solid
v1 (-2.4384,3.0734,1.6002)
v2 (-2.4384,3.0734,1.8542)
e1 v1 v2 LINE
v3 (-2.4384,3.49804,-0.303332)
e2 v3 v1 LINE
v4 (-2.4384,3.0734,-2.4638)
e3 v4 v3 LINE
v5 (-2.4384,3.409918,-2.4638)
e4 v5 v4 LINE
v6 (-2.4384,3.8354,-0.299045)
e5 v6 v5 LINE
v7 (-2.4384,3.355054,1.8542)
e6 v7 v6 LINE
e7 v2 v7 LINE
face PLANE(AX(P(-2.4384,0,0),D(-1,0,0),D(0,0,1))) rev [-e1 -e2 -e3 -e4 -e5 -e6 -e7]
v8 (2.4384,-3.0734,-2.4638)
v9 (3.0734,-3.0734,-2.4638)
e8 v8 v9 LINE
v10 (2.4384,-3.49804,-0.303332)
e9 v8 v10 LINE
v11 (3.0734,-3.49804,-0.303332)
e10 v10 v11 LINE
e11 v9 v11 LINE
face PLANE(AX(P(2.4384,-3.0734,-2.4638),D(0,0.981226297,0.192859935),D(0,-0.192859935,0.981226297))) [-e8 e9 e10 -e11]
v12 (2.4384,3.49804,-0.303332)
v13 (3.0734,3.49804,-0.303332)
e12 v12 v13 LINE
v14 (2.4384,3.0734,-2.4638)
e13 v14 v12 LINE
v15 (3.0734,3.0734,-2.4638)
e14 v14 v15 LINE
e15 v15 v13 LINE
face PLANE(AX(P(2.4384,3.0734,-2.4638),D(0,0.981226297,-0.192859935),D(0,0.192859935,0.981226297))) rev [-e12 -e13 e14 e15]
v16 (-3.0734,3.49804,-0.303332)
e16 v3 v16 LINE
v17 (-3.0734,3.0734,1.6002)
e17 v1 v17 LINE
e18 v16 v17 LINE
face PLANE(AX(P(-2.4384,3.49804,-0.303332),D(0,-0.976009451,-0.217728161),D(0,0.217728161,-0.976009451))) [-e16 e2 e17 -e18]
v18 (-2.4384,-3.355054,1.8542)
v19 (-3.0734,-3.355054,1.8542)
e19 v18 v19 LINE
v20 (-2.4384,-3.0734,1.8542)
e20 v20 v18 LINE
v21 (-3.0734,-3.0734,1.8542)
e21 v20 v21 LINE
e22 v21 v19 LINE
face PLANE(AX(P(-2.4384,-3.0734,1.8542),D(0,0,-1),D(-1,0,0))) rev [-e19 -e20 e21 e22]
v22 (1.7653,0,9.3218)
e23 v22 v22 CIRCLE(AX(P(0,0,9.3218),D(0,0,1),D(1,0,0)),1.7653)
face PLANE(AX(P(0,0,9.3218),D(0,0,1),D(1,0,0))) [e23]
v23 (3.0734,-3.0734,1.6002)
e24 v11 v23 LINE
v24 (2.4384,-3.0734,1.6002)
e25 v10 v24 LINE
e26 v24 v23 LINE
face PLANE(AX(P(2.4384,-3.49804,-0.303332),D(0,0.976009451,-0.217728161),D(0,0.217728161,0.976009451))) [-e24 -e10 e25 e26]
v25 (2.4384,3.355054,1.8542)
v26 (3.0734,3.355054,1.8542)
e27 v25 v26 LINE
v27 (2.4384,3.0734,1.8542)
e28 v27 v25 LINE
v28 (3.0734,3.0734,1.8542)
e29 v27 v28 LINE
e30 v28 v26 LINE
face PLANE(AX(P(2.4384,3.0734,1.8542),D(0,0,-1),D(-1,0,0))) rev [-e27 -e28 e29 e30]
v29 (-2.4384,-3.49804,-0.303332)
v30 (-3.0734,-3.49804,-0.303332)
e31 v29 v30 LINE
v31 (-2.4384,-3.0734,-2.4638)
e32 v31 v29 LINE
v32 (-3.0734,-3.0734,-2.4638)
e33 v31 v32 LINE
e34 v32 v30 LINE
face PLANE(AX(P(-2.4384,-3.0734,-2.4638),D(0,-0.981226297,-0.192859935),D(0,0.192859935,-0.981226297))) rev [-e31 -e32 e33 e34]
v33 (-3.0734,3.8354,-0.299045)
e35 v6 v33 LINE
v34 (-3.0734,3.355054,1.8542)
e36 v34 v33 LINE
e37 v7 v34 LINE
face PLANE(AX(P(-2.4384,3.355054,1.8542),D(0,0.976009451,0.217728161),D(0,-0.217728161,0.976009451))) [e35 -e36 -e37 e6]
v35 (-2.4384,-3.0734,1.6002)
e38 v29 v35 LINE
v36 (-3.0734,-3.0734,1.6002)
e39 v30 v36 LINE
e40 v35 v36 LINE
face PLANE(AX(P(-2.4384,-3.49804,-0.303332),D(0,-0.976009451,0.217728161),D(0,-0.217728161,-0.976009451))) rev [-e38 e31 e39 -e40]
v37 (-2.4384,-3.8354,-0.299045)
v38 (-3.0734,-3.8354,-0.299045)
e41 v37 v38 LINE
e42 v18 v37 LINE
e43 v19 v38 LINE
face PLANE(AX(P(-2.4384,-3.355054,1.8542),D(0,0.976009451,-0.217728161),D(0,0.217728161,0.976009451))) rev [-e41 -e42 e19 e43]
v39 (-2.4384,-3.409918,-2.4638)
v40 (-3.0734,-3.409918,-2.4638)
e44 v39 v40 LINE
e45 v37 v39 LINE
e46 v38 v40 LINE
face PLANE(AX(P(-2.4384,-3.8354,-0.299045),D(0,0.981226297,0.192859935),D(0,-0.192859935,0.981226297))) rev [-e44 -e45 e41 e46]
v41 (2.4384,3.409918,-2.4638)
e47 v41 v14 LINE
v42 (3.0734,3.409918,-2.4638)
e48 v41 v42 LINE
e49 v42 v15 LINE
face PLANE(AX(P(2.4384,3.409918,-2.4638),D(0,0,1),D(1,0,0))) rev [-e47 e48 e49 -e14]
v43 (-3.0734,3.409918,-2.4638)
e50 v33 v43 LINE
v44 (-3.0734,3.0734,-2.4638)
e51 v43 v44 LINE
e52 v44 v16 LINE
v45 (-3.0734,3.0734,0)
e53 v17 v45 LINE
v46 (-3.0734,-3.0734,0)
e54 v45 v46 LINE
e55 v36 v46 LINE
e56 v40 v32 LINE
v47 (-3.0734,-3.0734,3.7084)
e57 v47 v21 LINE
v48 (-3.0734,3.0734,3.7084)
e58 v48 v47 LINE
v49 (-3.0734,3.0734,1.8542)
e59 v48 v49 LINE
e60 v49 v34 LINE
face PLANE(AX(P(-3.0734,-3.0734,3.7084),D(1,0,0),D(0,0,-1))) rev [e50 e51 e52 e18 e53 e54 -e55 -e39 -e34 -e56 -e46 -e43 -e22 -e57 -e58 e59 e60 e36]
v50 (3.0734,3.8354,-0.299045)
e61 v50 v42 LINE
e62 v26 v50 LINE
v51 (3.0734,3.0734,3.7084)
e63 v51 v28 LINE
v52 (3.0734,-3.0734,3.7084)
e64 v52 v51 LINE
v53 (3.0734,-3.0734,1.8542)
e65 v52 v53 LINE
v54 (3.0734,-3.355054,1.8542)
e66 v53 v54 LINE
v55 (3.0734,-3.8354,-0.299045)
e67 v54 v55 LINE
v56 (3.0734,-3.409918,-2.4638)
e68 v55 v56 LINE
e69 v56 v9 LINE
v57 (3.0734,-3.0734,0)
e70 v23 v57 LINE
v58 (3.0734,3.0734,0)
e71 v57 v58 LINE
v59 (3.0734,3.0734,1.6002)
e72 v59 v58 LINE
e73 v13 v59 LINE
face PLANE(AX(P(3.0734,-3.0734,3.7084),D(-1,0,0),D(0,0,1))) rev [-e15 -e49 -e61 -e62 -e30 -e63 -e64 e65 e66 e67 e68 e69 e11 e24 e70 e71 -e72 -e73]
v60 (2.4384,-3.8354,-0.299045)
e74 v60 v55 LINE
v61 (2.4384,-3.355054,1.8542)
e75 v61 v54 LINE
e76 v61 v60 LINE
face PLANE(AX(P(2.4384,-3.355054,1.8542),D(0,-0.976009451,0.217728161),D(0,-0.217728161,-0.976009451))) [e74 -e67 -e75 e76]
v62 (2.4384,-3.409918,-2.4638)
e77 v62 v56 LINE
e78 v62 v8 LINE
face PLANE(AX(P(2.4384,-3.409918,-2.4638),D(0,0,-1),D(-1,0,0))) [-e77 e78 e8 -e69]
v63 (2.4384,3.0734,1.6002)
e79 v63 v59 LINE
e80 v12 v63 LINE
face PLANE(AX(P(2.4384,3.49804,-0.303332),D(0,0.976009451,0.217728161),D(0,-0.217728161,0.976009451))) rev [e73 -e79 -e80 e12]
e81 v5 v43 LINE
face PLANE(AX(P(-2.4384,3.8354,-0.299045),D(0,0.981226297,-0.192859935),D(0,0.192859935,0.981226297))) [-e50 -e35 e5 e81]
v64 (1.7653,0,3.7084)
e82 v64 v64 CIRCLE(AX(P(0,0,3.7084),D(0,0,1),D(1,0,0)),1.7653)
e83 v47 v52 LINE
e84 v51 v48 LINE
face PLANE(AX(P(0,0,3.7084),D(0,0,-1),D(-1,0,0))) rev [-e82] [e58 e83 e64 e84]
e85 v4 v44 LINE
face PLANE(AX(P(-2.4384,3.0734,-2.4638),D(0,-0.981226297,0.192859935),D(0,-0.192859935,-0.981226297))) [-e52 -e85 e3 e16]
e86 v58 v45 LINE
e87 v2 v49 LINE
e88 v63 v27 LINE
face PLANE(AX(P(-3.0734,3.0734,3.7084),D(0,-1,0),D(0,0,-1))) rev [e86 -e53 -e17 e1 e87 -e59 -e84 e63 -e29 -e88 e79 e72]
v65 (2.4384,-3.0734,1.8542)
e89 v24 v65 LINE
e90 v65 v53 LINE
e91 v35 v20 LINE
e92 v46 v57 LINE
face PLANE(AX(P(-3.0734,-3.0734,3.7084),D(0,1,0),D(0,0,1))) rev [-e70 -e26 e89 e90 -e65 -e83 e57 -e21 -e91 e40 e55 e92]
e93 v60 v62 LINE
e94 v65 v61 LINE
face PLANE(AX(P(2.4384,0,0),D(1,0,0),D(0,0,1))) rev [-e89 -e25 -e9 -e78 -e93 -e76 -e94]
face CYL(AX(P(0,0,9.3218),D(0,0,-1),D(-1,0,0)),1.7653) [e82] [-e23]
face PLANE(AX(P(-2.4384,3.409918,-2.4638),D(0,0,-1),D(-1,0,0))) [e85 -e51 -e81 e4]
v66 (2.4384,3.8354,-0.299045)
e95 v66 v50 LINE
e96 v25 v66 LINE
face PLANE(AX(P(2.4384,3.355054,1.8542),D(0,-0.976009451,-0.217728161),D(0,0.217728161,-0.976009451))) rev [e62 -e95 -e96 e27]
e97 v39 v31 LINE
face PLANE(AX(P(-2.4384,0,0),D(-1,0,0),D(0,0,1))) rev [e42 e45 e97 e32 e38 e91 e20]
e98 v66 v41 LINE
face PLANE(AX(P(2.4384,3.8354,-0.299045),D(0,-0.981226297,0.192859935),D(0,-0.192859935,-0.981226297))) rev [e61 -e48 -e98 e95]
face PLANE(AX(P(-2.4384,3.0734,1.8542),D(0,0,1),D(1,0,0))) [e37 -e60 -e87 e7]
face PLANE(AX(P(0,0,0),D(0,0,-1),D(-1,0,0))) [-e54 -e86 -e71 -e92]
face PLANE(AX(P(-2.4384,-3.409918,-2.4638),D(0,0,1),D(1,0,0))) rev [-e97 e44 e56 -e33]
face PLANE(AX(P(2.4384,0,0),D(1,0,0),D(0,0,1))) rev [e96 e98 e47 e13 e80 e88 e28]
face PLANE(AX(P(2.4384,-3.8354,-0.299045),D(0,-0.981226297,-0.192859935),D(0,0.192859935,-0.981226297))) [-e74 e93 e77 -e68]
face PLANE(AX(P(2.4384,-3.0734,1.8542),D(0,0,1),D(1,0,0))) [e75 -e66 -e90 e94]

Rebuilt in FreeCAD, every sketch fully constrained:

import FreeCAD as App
import Part
import Sketcher
Q = App.Units.Quantity

doc = App.newDocument("Part")
body = doc.addObject("PartDesign::Body", "Body")

sketch1 = body.newObject("Sketcher::SketchObject", "Sketch")
sketch1.AttachmentSupport = (doc.getObject("XY_Plane"), [""])
sketch1.MapMode = "FlatFace"
sketch1.addGeometry(Part.LineSegment(App.Vector(-3.0734, 3.0734, 0), App.Vector(-3.0734, -3.0734, 0)), False)
sketch1.addGeometry(Part.LineSegment(App.Vector(-3.0734, -3.0734, 0), App.Vector(3.0734, -3.0734, 0)), False)
sketch1.addGeometry(Part.LineSegment(App.Vector(3.0734, -3.0734, 0), App.Vector(3.0734, 3.0734, 0)), False)
sketch1.addGeometry(Part.LineSegment(App.Vector(3.0734, 3.0734, 0), App.Vector(-3.0734, 3.0734, 0)), False)
sketch1.addConstraint(Sketcher.Constraint("Coincident", 0, 2, 1, 1))
sketch1.addConstraint(Sketcher.Constraint("Coincident", 1, 2, 2, 1))
sketch1.addConstraint(Sketcher.Constraint("Coincident", 2, 2, 3, 1))
sketch1.addConstraint(Sketcher.Constraint("Coincident", 3, 2, 0, 1))
sketch1.addConstraint(Sketcher.Constraint("Vertical", 0))
sketch1.addConstraint(Sketcher.Constraint("Horizontal", 1))
sketch1.addConstraint(Sketcher.Constraint("Vertical", 2))
sketch1.addConstraint(Sketcher.Constraint("Horizontal", 3))
sketch1.addConstraint(Sketcher.Constraint("Symmetric", 0, 2, 2, 2, -1, 1))
sketch1.addConstraint(Sketcher.Constraint("Equal", 3, 0))
sketch1.addConstraint(Sketcher.Constraint("DistanceX", 1, 1, 1, 2, Q("0.242 in")))
pad1 = body.newObject("PartDesign::Pad", "Pad")
pad1.Profile = sketch1
pad1.Length = Q("0.146 in")

sketch2 = body.newObject("Sketcher::SketchObject", "Sketch001")
sketch2.AttachmentSupport = (doc.getObject("XY_Plane"), [""])
sketch2.MapMode = "FlatFace"
sketch2.AttachmentOffset = App.Placement(App.Vector(0, 0, 0.146 * 25.4), App.Rotation())
sketch2.addGeometry(Part.Circle(App.Vector(0, 0, 0), App.Vector(0, 0, 1), 1.7653), False)
sketch2.addConstraint(Sketcher.Constraint("Coincident", 0, 3, -1, 1))
sketch2.addConstraint(Sketcher.Constraint("Diameter", 0, Q("0.139 in")))
pad2 = body.newObject("PartDesign::Pad", "Pad001")
pad2.Profile = sketch2
pad2.Length = Q("0.221 in")

sketch3 = body.newObject("Sketcher::SketchObject", "Sketch002")
sketch3.AttachmentSupport = (doc.getObject("YZ_Plane"), [""])
sketch3.MapMode = "FlatFace"
sketch3.AttachmentOffset = App.Placement(App.Vector(0, 0, -0.121 * 25.4), App.Rotation())
sketch3.addGeometry(Part.LineSegment(App.Vector(3.0734, 1.8542, 0), App.Vector(3.355054, 1.8542, 0)), False)
sketch3.addGeometry(Part.LineSegment(App.Vector(3.355054, 1.8542, 0), App.Vector(3.8354, -0.299045, 0)), False)
sketch3.addGeometry(Part.LineSegment(App.Vector(3.8354, -0.299045, 0), App.Vector(3.409918, -2.4638, 0)), False)
sketch3.addGeometry(Part.LineSegment(App.Vector(3.409918, -2.4638, 0), App.Vector(3.0734, -2.4638, 0)), False)
sketch3.addGeometry(Part.LineSegment(App.Vector(3.0734, -2.4638, 0), App.Vector(3.49804, -0.303332, 0)), False)
sketch3.addGeometry(Part.LineSegment(App.Vector(3.49804, -0.303332, 0), App.Vector(3.0734, 1.6002, 0)), False)
sketch3.addGeometry(Part.LineSegment(App.Vector(3.0734, 1.6002, 0), App.Vector(3.0734, 1.8542, 0)), False)
sketch3.addConstraint(Sketcher.Constraint("Coincident", 0, 2, 1, 1))
sketch3.addConstraint(Sketcher.Constraint("Coincident", 1, 2, 2, 1))
sketch3.addConstraint(Sketcher.Constraint("Coincident", 2, 2, 3, 1))
sketch3.addConstraint(Sketcher.Constraint("Coincident", 3, 2, 4, 1))
sketch3.addConstraint(Sketcher.Constraint("Coincident", 4, 2, 5, 1))
sketch3.addConstraint(Sketcher.Constraint("Coincident", 5, 2, 6, 1))
sketch3.addConstraint(Sketcher.Constraint("Coincident", 6, 2, 0, 1))
sketch3.addConstraint(Sketcher.Constraint("Horizontal", 0))
sketch3.addConstraint(Sketcher.Constraint("Horizontal", 3))
sketch3.addConstraint(Sketcher.Constraint("Vertical", 6))
sketch3.addConstraint(Sketcher.Constraint("Parallel", 2, 4))
sketch3.addConstraint(Sketcher.Constraint("Parallel", 1, 5))
sketch3.addConstraint(Sketcher.Constraint("Vertical", 3, 2, 5, 2))
sketch3.addConstraint(Sketcher.Constraint("Equal", 1, 2))
sketch3.addConstraint(Sketcher.Constraint("DistanceY", 6, 1, 6, 2, Q("0.01 in")))
sketch3.addConstraint(Sketcher.Constraint("DistanceY", 2, 2, 0, 2, Q("0.17 in")))
sketch3.addConstraint(Sketcher.Constraint("DistanceX", 3, 2, 1, 2, Q("0.03 in")))
sketch3.addConstraint(Sketcher.Constraint("DistanceY", -1, 1, 0, 2, Q("0.073 in")))
sketch3.addConstraint(Sketcher.Constraint("DistanceX", -1, 1, 1, 2, Q("0.151 in")))
sketch3.addConstraint(Sketcher.Constraint("Distance", 5, 1.950321))
sketch3.addConstraint(Sketcher.Constraint("DistanceX", 0, 1, 0, 2, 0.281654))
pad3 = body.newObject("PartDesign::Pad", "Pad002")
pad3.Profile = sketch3
pad3.Length = Q("0.025 in")
doc.recompute()

mirrored = body.newObject("PartDesign::Mirrored", "Mirrored")
mirrored.Originals = [pad3]
mirrored.MirrorPlane = (doc.getObject("YZ_Plane"), [""])
body.Tip = mirrored
doc.recompute()

mirrored2 = body.newObject("PartDesign::Mirrored", "Mirrored001")
mirrored2.Originals = [pad3]
mirrored2.MirrorPlane = (doc.getObject("XZ_Plane"), [""])
body.Tip = mirrored2

sketch4 = body.newObject("Sketcher::SketchObject", "Sketch003")
sketch4.AttachmentSupport = (doc.getObject("YZ_Plane"), [""])
sketch4.MapMode = "FlatFace"
sketch4.AttachmentOffset = App.Placement(App.Vector(0, 0, 0.121 * 25.4), App.Rotation())
sketch4.addGeometry(Part.LineSegment(App.Vector(-3.0734, 1.8542, 0), App.Vector(-3.355054, 1.8542, 0)), False)
sketch4.addGeometry(Part.LineSegment(App.Vector(-3.355054, 1.8542, 0), App.Vector(-3.8354, -0.299045, 0)), False)
sketch4.addGeometry(Part.LineSegment(App.Vector(-3.8354, -0.299045, 0), App.Vector(-3.409918, -2.4638, 0)), False)
sketch4.addGeometry(Part.LineSegment(App.Vector(-3.409918, -2.4638, 0), App.Vector(-3.0734, -2.4638, 0)), False)
sketch4.addGeometry(Part.LineSegment(App.Vector(-3.0734, -2.4638, 0), App.Vector(-3.49804, -0.303332, 0)), False)
sketch4.addGeometry(Part.LineSegment(App.Vector(-3.49804, -0.303332, 0), App.Vector(-3.0734, 1.6002, 0)), False)
sketch4.addGeometry(Part.LineSegment(App.Vector(-3.0734, 1.6002, 0), App.Vector(-3.0734, 1.8542, 0)), False)
sketch4.addConstraint(Sketcher.Constraint("Coincident", 0, 2, 1, 1))
sketch4.addConstraint(Sketcher.Constraint("Coincident", 1, 2, 2, 1))
sketch4.addConstraint(Sketcher.Constraint("Coincident", 2, 2, 3, 1))
sketch4.addConstraint(Sketcher.Constraint("Coincident", 3, 2, 4, 1))
sketch4.addConstraint(Sketcher.Constraint("Coincident", 4, 2, 5, 1))
sketch4.addConstraint(Sketcher.Constraint("Coincident", 5, 2, 6, 1))
sketch4.addConstraint(Sketcher.Constraint("Coincident", 6, 2, 0, 1))
sketch4.addConstraint(Sketcher.Constraint("Horizontal", 0))
sketch4.addConstraint(Sketcher.Constraint("Horizontal", 3))
sketch4.addConstraint(Sketcher.Constraint("Vertical", 6))
sketch4.addConstraint(Sketcher.Constraint("Parallel", 2, 4))
sketch4.addConstraint(Sketcher.Constraint("Parallel", 1, 5))
sketch4.addConstraint(Sketcher.Constraint("Vertical", 3, 2, 5, 2))
sketch4.addConstraint(Sketcher.Constraint("Equal", 1, 2))
sketch4.addConstraint(Sketcher.Constraint("DistanceY", 6, 1, 6, 2, Q("0.01 in")))
sketch4.addConstraint(Sketcher.Constraint("DistanceY", 2, 2, 0, 2, Q("0.17 in")))
sketch4.addConstraint(Sketcher.Constraint("DistanceX", 1, 2, 3, 2, Q("0.03 in")))
sketch4.addConstraint(Sketcher.Constraint("DistanceY", -1, 1, 0, 2, Q("0.073 in")))
sketch4.addConstraint(Sketcher.Constraint("DistanceX", 1, 2, -1, 1, Q("0.151 in")))
sketch4.addConstraint(Sketcher.Constraint("Distance", 5, 1.950321))
sketch4.addConstraint(Sketcher.Constraint("DistanceX", 0, 2, 0, 1, 0.281654))
pad4 = body.newObject("PartDesign::Pad", "Pad003")
pad4.Profile = sketch4
pad4.Length = Q("0.025 in")
pad4.Reversed = True

doc.recompute()
